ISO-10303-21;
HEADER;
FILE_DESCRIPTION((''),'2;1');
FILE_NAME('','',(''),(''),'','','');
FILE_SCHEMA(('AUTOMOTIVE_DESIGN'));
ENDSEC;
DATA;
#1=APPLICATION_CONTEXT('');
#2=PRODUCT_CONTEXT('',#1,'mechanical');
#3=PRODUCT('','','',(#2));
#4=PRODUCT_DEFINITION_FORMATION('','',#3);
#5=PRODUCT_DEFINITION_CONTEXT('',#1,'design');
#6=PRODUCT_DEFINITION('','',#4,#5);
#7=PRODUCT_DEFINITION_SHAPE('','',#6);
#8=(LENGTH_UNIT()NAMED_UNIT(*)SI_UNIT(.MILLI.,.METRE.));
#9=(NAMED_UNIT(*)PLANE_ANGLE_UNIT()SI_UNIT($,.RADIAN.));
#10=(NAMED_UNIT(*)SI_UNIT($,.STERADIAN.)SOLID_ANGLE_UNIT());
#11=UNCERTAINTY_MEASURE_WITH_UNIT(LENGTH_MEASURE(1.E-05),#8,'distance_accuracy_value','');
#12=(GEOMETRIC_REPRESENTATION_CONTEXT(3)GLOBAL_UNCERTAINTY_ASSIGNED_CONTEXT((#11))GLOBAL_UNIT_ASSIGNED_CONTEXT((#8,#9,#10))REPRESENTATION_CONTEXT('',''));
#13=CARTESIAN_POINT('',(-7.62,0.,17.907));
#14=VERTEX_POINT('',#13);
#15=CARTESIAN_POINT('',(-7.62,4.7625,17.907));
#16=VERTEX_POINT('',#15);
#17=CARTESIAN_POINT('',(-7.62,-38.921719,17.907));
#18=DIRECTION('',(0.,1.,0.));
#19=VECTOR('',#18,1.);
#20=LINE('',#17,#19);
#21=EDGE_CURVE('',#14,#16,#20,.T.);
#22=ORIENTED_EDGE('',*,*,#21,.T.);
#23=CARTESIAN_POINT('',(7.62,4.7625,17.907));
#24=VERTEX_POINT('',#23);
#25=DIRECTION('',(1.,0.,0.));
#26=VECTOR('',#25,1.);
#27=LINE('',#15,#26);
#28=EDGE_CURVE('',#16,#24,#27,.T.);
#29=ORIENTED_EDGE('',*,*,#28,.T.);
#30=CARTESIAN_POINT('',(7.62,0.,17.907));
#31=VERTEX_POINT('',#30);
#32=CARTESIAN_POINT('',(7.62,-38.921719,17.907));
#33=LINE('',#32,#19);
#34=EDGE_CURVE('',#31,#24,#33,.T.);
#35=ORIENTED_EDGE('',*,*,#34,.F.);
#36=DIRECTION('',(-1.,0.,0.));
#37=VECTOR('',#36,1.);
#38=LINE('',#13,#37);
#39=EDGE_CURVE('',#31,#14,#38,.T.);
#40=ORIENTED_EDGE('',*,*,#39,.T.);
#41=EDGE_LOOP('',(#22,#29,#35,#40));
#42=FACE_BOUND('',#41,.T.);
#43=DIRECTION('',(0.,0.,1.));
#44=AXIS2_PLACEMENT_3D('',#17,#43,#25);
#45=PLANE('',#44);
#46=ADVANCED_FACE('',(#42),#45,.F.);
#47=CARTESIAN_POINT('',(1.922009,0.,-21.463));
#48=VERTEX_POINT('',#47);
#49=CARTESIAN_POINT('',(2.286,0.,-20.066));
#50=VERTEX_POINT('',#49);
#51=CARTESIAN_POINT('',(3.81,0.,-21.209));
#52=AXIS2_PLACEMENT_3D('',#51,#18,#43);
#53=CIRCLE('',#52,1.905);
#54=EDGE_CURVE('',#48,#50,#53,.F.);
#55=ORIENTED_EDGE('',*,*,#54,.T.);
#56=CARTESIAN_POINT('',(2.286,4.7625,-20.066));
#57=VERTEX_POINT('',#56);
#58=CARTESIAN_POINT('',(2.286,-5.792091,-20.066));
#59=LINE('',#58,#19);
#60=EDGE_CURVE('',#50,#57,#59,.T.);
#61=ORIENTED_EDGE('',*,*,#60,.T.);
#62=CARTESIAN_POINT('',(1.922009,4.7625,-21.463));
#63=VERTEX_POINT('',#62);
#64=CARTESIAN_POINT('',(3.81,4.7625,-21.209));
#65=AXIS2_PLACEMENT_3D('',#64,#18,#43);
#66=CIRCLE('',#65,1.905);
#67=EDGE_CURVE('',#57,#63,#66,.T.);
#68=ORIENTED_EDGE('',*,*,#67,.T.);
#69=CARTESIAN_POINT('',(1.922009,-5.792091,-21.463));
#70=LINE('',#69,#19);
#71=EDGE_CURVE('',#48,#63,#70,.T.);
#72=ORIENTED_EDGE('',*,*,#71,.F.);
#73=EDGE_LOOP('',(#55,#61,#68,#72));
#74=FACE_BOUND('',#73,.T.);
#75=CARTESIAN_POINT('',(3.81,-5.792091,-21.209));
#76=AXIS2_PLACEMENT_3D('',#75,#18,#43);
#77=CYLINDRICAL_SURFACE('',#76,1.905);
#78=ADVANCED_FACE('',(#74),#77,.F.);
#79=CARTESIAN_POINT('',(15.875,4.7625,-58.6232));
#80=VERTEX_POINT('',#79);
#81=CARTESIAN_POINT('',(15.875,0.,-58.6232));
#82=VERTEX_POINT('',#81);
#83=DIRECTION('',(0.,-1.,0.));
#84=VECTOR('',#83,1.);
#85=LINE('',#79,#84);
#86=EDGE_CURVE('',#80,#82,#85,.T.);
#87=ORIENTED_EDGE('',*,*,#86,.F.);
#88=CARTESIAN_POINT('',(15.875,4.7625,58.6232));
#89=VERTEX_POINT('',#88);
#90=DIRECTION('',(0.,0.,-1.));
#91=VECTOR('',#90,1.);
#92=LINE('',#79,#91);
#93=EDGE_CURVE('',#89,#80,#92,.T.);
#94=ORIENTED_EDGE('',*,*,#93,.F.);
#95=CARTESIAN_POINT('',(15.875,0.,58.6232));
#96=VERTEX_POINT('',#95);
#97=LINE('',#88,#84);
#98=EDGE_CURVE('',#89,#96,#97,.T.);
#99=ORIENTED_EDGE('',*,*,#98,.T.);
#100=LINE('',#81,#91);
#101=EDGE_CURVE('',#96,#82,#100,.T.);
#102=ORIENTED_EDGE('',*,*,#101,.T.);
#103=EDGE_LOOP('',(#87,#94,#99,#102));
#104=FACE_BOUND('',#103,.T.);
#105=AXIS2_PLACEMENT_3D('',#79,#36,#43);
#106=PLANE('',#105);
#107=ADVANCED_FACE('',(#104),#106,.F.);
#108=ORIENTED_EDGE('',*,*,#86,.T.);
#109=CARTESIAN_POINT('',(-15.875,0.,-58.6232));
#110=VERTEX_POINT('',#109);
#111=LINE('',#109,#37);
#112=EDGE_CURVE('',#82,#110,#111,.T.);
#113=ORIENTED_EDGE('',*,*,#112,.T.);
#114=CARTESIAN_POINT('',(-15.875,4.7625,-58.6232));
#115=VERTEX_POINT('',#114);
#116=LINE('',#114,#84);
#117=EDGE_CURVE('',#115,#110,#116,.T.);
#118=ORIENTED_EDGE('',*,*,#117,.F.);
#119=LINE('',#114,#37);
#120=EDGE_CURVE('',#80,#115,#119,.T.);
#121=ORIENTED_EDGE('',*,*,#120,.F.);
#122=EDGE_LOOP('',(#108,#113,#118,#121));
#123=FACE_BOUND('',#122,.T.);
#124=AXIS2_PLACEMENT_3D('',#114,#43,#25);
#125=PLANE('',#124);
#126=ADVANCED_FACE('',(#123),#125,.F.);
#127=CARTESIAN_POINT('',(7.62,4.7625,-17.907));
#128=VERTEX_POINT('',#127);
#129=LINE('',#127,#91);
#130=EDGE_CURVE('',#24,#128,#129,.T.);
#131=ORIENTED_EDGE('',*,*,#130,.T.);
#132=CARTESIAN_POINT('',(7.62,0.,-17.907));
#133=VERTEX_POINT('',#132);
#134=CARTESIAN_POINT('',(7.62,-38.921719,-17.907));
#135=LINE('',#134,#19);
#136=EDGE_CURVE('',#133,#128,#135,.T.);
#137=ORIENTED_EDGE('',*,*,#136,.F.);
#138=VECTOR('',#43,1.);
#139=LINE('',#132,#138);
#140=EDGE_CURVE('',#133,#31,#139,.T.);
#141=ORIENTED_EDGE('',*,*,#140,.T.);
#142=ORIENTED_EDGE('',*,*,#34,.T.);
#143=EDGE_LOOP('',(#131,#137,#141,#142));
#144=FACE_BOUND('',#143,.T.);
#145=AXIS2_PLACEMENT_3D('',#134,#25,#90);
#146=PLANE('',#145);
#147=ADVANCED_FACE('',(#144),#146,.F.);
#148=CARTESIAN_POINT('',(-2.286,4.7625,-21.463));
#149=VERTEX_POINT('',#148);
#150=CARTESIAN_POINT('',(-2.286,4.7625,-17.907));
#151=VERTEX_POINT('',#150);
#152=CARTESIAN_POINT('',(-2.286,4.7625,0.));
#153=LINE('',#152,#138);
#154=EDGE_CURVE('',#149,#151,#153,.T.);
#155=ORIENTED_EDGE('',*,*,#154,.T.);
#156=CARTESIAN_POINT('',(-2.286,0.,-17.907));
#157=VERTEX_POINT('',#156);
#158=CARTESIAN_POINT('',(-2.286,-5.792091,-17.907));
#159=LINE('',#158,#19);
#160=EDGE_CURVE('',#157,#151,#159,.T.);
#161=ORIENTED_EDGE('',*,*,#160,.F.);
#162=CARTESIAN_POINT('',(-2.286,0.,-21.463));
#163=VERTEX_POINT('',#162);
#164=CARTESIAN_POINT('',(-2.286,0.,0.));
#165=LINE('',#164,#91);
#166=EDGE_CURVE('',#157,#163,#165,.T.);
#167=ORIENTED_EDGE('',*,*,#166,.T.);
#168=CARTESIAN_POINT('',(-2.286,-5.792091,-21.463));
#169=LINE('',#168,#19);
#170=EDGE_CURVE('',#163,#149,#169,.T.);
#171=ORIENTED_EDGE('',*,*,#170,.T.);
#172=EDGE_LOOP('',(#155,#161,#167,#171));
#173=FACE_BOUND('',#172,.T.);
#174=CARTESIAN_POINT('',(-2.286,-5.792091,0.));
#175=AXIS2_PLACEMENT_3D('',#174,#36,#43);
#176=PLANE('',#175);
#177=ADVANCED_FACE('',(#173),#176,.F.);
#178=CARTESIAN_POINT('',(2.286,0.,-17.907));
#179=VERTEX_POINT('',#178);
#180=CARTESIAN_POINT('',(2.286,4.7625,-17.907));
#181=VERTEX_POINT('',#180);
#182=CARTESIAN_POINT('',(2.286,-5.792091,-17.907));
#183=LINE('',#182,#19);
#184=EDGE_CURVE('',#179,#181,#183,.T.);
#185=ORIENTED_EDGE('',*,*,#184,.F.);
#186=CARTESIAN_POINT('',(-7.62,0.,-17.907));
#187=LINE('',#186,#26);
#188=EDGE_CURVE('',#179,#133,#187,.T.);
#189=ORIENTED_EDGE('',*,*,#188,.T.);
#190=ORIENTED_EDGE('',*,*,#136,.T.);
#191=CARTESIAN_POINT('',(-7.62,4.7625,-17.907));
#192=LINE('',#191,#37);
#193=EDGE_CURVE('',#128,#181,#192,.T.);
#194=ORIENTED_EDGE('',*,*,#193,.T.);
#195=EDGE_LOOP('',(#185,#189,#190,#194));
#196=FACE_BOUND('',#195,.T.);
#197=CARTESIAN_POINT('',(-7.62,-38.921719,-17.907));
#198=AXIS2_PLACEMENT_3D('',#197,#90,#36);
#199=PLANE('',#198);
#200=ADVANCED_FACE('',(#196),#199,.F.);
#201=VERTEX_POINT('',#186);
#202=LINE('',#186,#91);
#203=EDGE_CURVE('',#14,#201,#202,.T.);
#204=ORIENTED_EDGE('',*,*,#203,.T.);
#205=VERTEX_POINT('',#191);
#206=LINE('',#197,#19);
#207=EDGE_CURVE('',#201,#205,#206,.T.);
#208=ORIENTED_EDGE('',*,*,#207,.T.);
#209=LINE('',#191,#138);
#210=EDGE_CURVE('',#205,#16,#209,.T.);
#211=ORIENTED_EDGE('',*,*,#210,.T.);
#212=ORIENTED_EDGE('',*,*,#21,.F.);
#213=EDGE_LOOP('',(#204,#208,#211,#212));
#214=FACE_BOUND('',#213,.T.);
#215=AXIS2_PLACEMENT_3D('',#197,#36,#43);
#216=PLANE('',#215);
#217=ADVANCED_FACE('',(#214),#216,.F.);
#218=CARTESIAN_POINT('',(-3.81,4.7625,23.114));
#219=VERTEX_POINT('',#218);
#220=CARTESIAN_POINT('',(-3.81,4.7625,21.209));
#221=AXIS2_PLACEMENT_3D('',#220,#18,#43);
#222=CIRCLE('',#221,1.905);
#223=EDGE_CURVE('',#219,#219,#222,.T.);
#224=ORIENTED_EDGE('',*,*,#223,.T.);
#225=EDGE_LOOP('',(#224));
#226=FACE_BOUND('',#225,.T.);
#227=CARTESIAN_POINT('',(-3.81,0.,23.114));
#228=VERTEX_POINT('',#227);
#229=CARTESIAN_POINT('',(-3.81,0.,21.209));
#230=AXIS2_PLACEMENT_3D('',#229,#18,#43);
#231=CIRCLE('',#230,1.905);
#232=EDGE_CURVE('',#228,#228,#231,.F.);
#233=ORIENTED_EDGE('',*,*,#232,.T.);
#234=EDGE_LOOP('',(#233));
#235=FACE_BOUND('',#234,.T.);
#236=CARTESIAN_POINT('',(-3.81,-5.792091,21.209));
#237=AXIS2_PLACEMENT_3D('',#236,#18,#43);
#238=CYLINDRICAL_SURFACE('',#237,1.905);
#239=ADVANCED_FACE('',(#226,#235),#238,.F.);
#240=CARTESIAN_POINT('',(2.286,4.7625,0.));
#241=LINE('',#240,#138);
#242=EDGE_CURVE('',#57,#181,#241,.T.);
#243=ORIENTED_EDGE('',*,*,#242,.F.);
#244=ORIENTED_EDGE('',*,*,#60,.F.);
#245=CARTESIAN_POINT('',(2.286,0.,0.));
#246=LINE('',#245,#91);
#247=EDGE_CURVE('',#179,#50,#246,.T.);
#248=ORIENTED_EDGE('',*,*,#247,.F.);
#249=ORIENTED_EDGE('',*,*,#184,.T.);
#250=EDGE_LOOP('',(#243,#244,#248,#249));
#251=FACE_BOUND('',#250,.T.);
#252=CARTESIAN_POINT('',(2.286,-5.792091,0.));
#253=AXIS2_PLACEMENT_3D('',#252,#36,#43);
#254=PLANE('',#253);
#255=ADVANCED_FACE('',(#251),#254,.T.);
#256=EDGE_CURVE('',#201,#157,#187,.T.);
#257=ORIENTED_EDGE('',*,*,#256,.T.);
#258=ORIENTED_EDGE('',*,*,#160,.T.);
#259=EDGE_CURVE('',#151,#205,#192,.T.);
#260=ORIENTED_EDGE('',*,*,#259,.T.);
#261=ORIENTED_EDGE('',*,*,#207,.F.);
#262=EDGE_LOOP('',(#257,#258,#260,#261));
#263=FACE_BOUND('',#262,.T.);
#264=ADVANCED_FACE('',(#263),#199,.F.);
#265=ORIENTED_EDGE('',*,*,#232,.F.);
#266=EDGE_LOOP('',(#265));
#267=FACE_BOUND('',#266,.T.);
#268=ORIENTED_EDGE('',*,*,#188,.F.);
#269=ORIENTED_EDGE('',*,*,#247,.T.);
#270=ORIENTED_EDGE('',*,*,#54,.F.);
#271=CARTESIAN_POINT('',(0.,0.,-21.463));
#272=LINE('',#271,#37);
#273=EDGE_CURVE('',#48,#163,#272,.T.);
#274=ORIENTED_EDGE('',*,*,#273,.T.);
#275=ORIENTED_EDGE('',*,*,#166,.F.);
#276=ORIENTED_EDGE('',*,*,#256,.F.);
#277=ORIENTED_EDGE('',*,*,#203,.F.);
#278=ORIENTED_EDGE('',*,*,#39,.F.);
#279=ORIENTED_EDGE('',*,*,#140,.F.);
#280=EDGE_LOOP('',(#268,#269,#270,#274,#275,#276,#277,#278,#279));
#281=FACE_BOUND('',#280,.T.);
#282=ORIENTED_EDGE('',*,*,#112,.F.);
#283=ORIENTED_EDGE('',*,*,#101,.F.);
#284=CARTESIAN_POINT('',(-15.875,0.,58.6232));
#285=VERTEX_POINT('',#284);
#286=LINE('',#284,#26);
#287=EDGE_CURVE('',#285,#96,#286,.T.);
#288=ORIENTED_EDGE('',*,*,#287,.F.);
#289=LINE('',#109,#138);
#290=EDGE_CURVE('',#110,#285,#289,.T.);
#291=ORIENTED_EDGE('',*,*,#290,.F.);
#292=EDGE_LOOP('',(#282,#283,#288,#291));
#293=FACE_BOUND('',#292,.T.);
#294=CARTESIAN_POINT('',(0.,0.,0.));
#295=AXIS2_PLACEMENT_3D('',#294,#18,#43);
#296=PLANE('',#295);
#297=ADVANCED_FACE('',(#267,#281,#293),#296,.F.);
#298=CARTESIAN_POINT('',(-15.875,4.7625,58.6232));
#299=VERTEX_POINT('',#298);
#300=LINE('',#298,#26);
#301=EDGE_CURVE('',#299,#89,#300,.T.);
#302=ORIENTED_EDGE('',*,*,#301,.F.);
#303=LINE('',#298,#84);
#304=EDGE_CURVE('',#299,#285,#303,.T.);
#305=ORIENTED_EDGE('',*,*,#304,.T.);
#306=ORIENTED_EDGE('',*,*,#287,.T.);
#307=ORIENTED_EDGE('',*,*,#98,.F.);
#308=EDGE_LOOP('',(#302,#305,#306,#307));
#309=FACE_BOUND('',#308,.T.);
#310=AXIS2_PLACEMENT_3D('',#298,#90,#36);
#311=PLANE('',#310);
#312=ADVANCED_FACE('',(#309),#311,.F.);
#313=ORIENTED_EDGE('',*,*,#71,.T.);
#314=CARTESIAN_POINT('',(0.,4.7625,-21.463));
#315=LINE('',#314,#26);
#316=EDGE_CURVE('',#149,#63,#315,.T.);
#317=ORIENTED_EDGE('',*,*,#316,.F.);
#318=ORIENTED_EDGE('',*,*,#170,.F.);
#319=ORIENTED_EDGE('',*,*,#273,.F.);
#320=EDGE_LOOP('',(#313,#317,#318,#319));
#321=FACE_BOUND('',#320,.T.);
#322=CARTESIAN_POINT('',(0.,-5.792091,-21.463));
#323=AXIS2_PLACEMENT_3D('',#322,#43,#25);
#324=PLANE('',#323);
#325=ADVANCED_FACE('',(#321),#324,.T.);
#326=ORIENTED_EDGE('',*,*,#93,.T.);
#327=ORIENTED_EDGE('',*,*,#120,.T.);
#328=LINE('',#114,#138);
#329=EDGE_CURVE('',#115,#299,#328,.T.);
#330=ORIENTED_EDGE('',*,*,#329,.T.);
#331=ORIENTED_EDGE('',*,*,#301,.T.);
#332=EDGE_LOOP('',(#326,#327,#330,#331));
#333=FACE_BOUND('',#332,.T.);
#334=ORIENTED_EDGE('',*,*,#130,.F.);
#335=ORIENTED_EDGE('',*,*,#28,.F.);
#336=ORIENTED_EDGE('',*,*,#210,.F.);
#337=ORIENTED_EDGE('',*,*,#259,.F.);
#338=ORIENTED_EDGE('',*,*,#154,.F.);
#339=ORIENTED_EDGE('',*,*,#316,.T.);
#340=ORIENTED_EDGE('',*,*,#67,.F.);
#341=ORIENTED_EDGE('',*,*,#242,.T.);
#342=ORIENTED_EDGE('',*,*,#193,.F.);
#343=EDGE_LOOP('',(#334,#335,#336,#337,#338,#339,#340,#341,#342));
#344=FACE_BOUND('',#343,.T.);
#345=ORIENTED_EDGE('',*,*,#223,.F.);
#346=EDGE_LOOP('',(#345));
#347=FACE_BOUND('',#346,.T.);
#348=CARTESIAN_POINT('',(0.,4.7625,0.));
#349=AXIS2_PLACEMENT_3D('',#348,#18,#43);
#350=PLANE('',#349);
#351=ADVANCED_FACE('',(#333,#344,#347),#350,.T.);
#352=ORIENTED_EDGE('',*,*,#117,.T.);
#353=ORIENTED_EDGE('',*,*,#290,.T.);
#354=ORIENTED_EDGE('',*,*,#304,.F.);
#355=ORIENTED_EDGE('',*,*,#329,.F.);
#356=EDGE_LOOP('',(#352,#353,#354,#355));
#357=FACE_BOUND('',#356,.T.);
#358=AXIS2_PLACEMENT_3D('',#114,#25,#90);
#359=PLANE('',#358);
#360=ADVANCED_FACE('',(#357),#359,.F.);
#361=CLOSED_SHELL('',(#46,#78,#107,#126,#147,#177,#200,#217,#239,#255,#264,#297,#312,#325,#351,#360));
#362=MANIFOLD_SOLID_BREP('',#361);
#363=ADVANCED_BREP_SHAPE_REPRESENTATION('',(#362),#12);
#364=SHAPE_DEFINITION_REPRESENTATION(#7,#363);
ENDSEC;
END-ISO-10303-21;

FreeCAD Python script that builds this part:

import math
import FreeCAD as App
import Part
import Sketcher
from FreeCAD import Vector
Q = App.Units.Quantity

doc = App.newDocument("Part")
body = doc.addObject("PartDesign::Body", "Body")

# Sketch on XZ plane
sketch1 = body.newObject("Sketcher::SketchObject", "Sketch")
sketch1.AttachmentSupport = (doc.getObject("XZ_Plane"), [""])
sketch1.MapMode = "FlatFace"
sketch1.addGeometry(Part.LineSegment(Vector(-16, -59, 0), Vector(-16, 59, 0)), False)
sketch1.addGeometry(Part.LineSegment(Vector(-16, 59, 0), Vector(16, 59, 0)), False)
sketch1.addGeometry(Part.LineSegment(Vector(16, 59, 0), Vector(16, -59, 0)), False)
sketch1.addGeometry(Part.LineSegment(Vector(16, -59, 0), Vector(-16, -59, 0)), False)
sketch1.addConstraint(Sketcher.Constraint("Coincident", 0, 2, 1, 1))
sketch1.addConstraint(Sketcher.Constraint("Coincident", 1, 2, 2, 1))
sketch1.addConstraint(Sketcher.Constraint("Coincident", 2, 2, 3, 1))
sketch1.addConstraint(Sketcher.Constraint("Coincident", 3, 2, 0, 1))
sketch1.addConstraint(Sketcher.Constraint("Vertical", 0))
sketch1.addConstraint(Sketcher.Constraint("Horizontal", 1))
sketch1.addConstraint(Sketcher.Constraint("Vertical", 2))
sketch1.addConstraint(Sketcher.Constraint("Horizontal", 3))
sketch1.addConstraint(Sketcher.Constraint("Symmetric", 0, 2, 2, 2, -1, 1))
sketch1.addConstraint(Sketcher.Constraint("DistanceX", 1, 1, 1, 2, Q("1.25 in")))
sketch1.addConstraint(Sketcher.Constraint("DistanceY", 0, 1, 0, 2, Q("4.616 in")))
pad1 = body.newObject("PartDesign::Pad", "Pad")
pad1.Profile = sketch1
pad1.Length = Q("0.1875 in")
pad1.Reversed = True

# Sketch on XZ plane
sketch2 = body.newObject("Sketcher::SketchObject", "Sketch001")
sketch2.AttachmentSupport = (doc.getObject("XZ_Plane"), [""])
sketch2.MapMode = "FlatFace"
sketch2.AttachmentOffset = App.Placement(Vector(0, 0, -0.1875 * 25.4), App.Rotation())
sketch2.addGeometry(Part.LineSegment(Vector(-8, -18, 0), Vector(-8, 18, 0)), False)
sketch2.addGeometry(Part.LineSegment(Vector(-8, 18, 0), Vector(8, 18, 0)), False)
sketch2.addGeometry(Part.LineSegment(Vector(8, 18, 0), Vector(8, -18, 0)), False)
sketch2.addGeometry(Part.LineSegment(Vector(8, -18, 0), Vector(-8, -18, 0)), False)
sketch2.addConstraint(Sketcher.Constraint("Coincident", 0, 2, 1, 1))
sketch2.addConstraint(Sketcher.Constraint("Coincident", 1, 2, 2, 1))
sketch2.addConstraint(Sketcher.Constraint("Coincident", 2, 2, 3, 1))
sketch2.addConstraint(Sketcher.Constraint("Coincident", 3, 2, 0, 1))
sketch2.addConstraint(Sketcher.Constraint("Vertical", 0))
sketch2.addConstraint(Sketcher.Constraint("Horizontal", 1))
sketch2.addConstraint(Sketcher.Constraint("Vertical", 2))
sketch2.addConstraint(Sketcher.Constraint("Horizontal", 3))
sketch2.addConstraint(Sketcher.Constraint("Symmetric", 0, 2, 2, 2, -1, 1))
sketch2.addConstraint(Sketcher.Constraint("DistanceX", 1, 1, 1, 2, Q("0.6 in")))
sketch2.addConstraint(Sketcher.Constraint("DistanceY", 0, 1, 0, 2, Q("1.41 in")))
pocket1 = body.newObject("PartDesign::Pocket", "Pocket")
pocket1.Profile = sketch2
pocket1.Length = Q("0.1875 in")
pocket1.Reversed = True

# Sketch on XZ plane
sketch3 = body.newObject("Sketcher::SketchObject", "Sketch002")
sketch3.AttachmentSupport = (doc.getObject("XZ_Plane"), [""])
sketch3.MapMode = "FlatFace"
sketch3.AttachmentOffset = App.Placement(Vector(0, 0, -0.1875 * 25.4), App.Rotation())
sketch3.addGeometry(Part.Circle(Vector(-3.8, 21.2, 0), Vector(0, 0, 1), 1.9), False)
sketch3.addGeometry(Part.LineSegment(Vector(-2.3, -21.5, 0), Vector(-2.3, -17.9, 0)), False)
sketch3.addGeometry(Part.LineSegment(Vector(-2.3, -17.9, 0), Vector(2.3, -17.9, 0)), False)
sketch3.addGeometry(Part.LineSegment(Vector(2.3, -17.9, 0), Vector(2.3, -20.1, 0)), False)
sketch3.addGeometry(Part.ArcOfCircle(Part.Circle(Vector(3.8, -21.2, 0), Vector(0, 0, 1), 1.9), math.radians(0), math.radians(143)), False)
sketch3.addGeometry(Part.ArcOfCircle(Part.Circle(Vector(3.8, -21.2, 0), Vector(0, 0, 1), 1.9), math.radians(-172), math.radians(0)), False)
sketch3.addGeometry(Part.LineSegment(Vector(1.9, -21.5, 0), Vector(-2.3, -21.5, 0)), False)
sketch3.addConstraint(Sketcher.Constraint("Coincident", 1, 2, 2, 1))
sketch3.addConstraint(Sketcher.Constraint("Coincident", 2, 2, 3, 1))
sketch3.addConstraint(Sketcher.Constraint("Coincident", 3, 2, 4, 2))
sketch3.addConstraint(Sketcher.Constraint("Tangent", 4, 1, 5, 2))
sketch3.addConstraint(Sketcher.Constraint("Coincident", 5, 1, 6, 1))
sketch3.addConstraint(Sketcher.Constraint("Coincident", 6, 2, 1, 1))
sketch3.addConstraint(Sketcher.Constraint("Vertical", 1))
sketch3.addConstraint(Sketcher.Constraint("Horizontal", 2))
sketch3.addConstraint(Sketcher.Constraint("Vertical", 3))
sketch3.addConstraint(Sketcher.Constraint("Horizontal", 6))
sketch3.addConstraint(Sketcher.Constraint("Equal", 0, 4))
sketch3.addConstraint(Sketcher.Constraint("Equal", 4, 5))
sketch3.addConstraint(Sketcher.Constraint("Symmetric", 0, 3, 4, 3, -1, 1))
sketch3.addConstraint(Sketcher.Constraint("Horizontal", 5, 3, 4, 1))
sketch3.addConstraint(Sketcher.Constraint("Diameter", 0, Q("0.15 in")))
sketch3.addConstraint(Sketcher.Constraint("DistanceX", 2, 1, 2, 2, Q("0.18 in")))
sketch3.addConstraint(Sketcher.Constraint("DistanceY", 1, 1, 1, 2, Q("0.14 in")))
sketch3.addConstraint(Sketcher.Constraint("DistanceX", 0, 3, 4, 3, Q("0.3 in")))
sketch3.addConstraint(Sketcher.Constraint("DistanceY", 3, 2, 3, 1, Q("0.085 in")))
sketch3.addConstraint(Sketcher.Constraint("DistanceX", 1, 2, -1, 1, Q("0.09 in")))
sketch3.addConstraint(Sketcher.Constraint("DistanceY", 3, 2, -1, 1, Q("0.79 in")))
pocket2 = body.newObject("PartDesign::Pocket", "Pocket001")
pocket2.Profile = sketch3
pocket2.Length = Q("0.1875 in")
pocket2.Reversed = True

doc.recompute()
